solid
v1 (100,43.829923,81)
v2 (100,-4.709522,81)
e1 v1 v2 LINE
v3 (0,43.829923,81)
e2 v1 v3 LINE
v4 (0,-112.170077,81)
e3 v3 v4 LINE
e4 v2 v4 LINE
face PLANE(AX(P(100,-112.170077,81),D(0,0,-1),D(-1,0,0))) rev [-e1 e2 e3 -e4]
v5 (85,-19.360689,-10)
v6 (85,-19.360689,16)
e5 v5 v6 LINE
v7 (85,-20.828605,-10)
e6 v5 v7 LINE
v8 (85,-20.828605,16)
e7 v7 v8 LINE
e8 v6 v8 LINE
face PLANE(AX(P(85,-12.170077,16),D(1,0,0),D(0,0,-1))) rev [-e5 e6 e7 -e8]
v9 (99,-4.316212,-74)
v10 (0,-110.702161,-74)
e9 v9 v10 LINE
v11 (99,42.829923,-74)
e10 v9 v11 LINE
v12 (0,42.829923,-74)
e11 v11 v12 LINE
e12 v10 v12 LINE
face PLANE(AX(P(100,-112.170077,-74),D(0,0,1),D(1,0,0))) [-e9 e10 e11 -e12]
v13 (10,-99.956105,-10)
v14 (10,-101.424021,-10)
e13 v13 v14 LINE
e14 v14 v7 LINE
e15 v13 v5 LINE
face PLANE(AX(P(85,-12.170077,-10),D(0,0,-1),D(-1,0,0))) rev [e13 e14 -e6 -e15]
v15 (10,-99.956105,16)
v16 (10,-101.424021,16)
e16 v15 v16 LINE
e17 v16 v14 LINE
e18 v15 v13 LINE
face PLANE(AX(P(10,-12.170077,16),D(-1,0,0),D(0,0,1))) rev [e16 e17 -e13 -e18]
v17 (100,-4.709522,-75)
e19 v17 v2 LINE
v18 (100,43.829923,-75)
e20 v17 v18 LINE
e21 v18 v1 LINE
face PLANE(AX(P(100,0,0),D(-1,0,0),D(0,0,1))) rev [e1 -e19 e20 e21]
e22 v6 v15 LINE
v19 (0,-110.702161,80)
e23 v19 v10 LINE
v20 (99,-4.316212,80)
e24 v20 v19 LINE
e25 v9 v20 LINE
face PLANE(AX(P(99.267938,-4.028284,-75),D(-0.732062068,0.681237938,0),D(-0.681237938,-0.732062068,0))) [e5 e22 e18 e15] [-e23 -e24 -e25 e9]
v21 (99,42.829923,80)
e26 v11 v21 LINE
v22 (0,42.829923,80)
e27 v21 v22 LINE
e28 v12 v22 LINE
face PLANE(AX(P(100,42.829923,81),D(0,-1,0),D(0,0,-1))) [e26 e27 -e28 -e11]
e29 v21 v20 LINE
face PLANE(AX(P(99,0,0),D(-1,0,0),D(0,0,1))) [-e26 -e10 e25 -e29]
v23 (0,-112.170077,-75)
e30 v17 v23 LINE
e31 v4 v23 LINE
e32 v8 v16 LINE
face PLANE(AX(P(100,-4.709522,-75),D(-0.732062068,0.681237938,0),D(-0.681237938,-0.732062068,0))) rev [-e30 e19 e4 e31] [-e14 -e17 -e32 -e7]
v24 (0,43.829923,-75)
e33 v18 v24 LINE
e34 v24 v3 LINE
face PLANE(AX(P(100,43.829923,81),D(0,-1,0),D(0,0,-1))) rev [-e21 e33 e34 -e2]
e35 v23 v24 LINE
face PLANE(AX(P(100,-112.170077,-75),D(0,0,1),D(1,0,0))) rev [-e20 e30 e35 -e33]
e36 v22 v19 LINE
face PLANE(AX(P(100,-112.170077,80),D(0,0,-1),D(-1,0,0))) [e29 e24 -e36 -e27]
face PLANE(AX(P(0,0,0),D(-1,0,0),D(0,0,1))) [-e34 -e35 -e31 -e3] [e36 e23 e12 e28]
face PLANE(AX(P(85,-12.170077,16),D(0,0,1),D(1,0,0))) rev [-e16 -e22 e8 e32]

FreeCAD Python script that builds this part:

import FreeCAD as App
import Part
import Sketcher
from FreeCAD import Vector


def faces_at(feature, points):
    """Names of the faces that lie closest to the given points."""
    faces = feature.Shape.Faces
    near = lambda p: min(range(len(faces)), key=lambda i: faces[i].distToShape(Part.Vertex(*p))[0])
    return sorted({f"Face{near(p) + 1}" for p in points})

doc = App.newDocument("Part")
params = doc.addObject("Spreadsheet::Sheet", "Params")
for row, (alias, value) in enumerate([
    ("sketch1_width", "156 mm"),
    ("pad1_length", "100 mm"),
    ("sketch2_width", "75 mm"),
    ("sketch2_height", "26 mm"),
    ("pocket1_length", "100 mm"),
    ("sketch3_width", "100 mm"),
    ("thickness_wall", "1 mm"),
    ("sketch4_width", "77 mm"),
    ("pocket3_length", "28 mm"),
], start=1):
    params.set(f"A{row}", alias)
    params.set(f"B{row}", "=" + value)
    params.setAlias(f"B{row}", alias)

body = doc.addObject("PartDesign::Body", "Body")

# Sketch on YZ plane
sketch1 = body.newObject("Sketcher::SketchObject", "Sketch")
sketch1.AttachmentSupport = (doc.getObject("YZ_Plane"), [""])
sketch1.MapMode = "FlatFace"
sketch1.addGeometry([
    Part.LineSegment(Vector(44, 81, 0), Vector(-112, 81, 0)),
    Part.LineSegment(Vector(-112, 81, 0), Vector(-112, -75, 0)),
    Part.LineSegment(Vector(-112, -75, 0), Vector(44, -75, 0)),
    Part.LineSegment(Vector(44, -75, 0), Vector(44, 81, 0)),
], False)
sketch1.addConstraint([
    Sketcher.Constraint("Coincident", 0, 2, 1, 1),
    Sketcher.Constraint("Coincident", 1, 2, 2, 1),
    Sketcher.Constraint("Coincident", 2, 2, 3, 1),
    Sketcher.Constraint("Coincident", 3, 2, 0, 1),
    Sketcher.Constraint("Horizontal", 0),
    Sketcher.Constraint("Vertical", 1),
    Sketcher.Constraint("Horizontal", 2),
    Sketcher.Constraint("Vertical", 3),
    Sketcher.Constraint("Equal", 2, 1),
    Sketcher.Constraint("DistanceX", 0, 2, 0, 1, 156.0),
    Sketcher.Constraint("DistanceY", -1, 1, 0, 2, 81.0),
    Sketcher.Constraint("DistanceX", 0, 2, -1, 1, 112.170077),
])
sketch1.setExpression("Constraints[9]", "Params.sketch1_width")
pad1 = body.newObject("PartDesign::Pad", "Pad")
pad1.Profile = sketch1
pad1.setExpression("Length", "Params.pad1_length")

# Sketch on XZ plane
sketch2 = body.newObject("Sketcher::SketchObject", "Sketch001")
sketch2.AttachmentSupport = (doc.getObject("XZ_Plane"), [""])
sketch2.MapMode = "FlatFace"
sketch2.AttachmentOffset = App.Placement(Vector(0, 0, 112.170077), App.Rotation())
sketch2.addGeometry([
    Part.LineSegment(Vector(10, 16, 0), Vector(10, -10, 0)),
    Part.LineSegment(Vector(10, -10, 0), Vector(85, -10, 0)),
    Part.LineSegment(Vector(85, -10, 0), Vector(85, 16, 0)),
    Part.LineSegment(Vector(85, 16, 0), Vector(10, 16, 0)),
], False)
sketch2.addConstraint([
    Sketcher.Constraint("Coincident", 0, 2, 1, 1),
    Sketcher.Constraint("Coincident", 1, 2, 2, 1),
    Sketcher.Constraint("Coincident", 2, 2, 3, 1),
    Sketcher.Constraint("Coincident", 3, 2, 0, 1),
    Sketcher.Constraint("Vertical", 0),
    Sketcher.Constraint("Horizontal", 1),
    Sketcher.Constraint("Vertical", 2),
    Sketcher.Constraint("Horizontal", 3),
    Sketcher.Constraint("DistanceX", 1, 1, 1, 2, 75.0),
    Sketcher.Constraint("DistanceY", 0, 2, 0, 1, 26.0),
    Sketcher.Constraint("DistanceX", -1, 1, 0, 2, 10.0),
    Sketcher.Constraint("DistanceY", 0, 2, -1, 1, 10.0),
])
sketch2.setExpression("Constraints[8]", "Params.sketch2_width")
sketch2.setExpression("Constraints[9]", "Params.sketch2_height")
pocket1 = body.newObject("PartDesign::Pocket", "Pocket")
pocket1.Profile = sketch2
pocket1.setExpression("Length", "Params.pocket1_length")

# Sketch on XY plane
sketch3 = body.newObject("Sketcher::SketchObject", "Sketch002")
sketch3.AttachmentSupport = (doc.getObject("XY_Plane"), [""])
sketch3.MapMode = "FlatFace"
sketch3.AttachmentOffset = App.Placement(Vector(0, 0, 81), App.Rotation())
sketch3.addGeometry([
    Part.LineSegment(Vector(100, -5, 0), Vector(0, -112, 0)),
    Part.LineSegment(Vector(0, -112, 0), Vector(100, -112, 0)),
    Part.LineSegment(Vector(100, -112, 0), Vector(100, -5, 0)),
], False)
sketch3.addConstraint([
    Sketcher.Constraint("Coincident", 0, 2, 1, 1),
    Sketcher.Constraint("Coincident", 1, 2, 2, 1),
    Sketcher.Constraint("Coincident", 2, 2, 0, 1),
    Sketcher.Constraint("Horizontal", 1),
    Sketcher.Constraint("Vertical", 2),
    Sketcher.Constraint("PointOnObject", 0, 2, -2),
    Sketcher.Constraint("DistanceX", 1, 1, 1, 2, 100.0),
    Sketcher.Constraint("Distance", 0, 146.79159),
    Sketcher.Constraint("DistanceY", 2, 2, -1, 1, 4.709522),
])
sketch3.setExpression("Constraints[6]", "Params.sketch3_width")
pocket2 = body.newObject("PartDesign::Pocket", "Pocket001")
pocket2.Profile = sketch3
pocket2.Type = "ThroughAll"
doc.recompute()

thickness = body.newObject("PartDesign::Thickness", "Thickness")
thickness.Base = (pocket2, faces_at(pocket2, [(0, -34.17, 3)]))
thickness.setExpression("Value", "Params.thickness_wall")
thickness.Reversed = True
thickness.Join = "Intersection"

# Sketch on XY plane
sketch4 = body.newObject("Sketcher::SketchObject", "Sketch003")
sketch4.AttachmentSupport = (doc.getObject("XY_Plane"), [""])
sketch4.MapMode = "FlatFace"
sketch4.AttachmentOffset = App.Placement(Vector(0, 0, -11), App.Rotation())
sketch4.addGeometry([
    Part.LineSegment(Vector(86, -18, 0), Vector(9, -101, 0)),
    Part.LineSegment(Vector(9, -101, 0), Vector(9, -11, 0)),
    Part.LineSegment(Vector(9, -11, 0), Vector(86, -11, 0)),
    Part.LineSegment(Vector(86, -11, 0), Vector(86, -18, 0)),
], False)
sketch4.addConstraint([
    Sketcher.Constraint("Coincident", 0, 2, 1, 1),
    Sketcher.Constraint("Coincident", 1, 2, 2, 1),
    Sketcher.Constraint("Coincident", 2, 2, 3, 1),
    Sketcher.Constraint("Coincident", 3, 2, 0, 1),
    Sketcher.Constraint("Vertical", 1),
    Sketcher.Constraint("Horizontal", 2),
    Sketcher.Constraint("Vertical", 3),
    Sketcher.Constraint("DistanceX", 2, 1, 2, 2, 77.0),
    Sketcher.Constraint("DistanceX", -1, 1, 0, 2, 9.0),
    Sketcher.Constraint("DistanceY", 1, 1, 1, 2, 89.860634),
    Sketcher.Constraint("DistanceY", 3, 2, 3, 1, 7.116007),
    Sketcher.Constraint("DistanceY", 0, 2, -1, 1, 101.030711),
])
sketch4.setExpression("Constraints[7]", "Params.sketch4_width")
pocket3 = body.newObject("PartDesign::Pocket", "Pocket002")
pocket3.Profile = sketch4
pocket3.setExpression("Length", "Params.pocket3_length")
pocket3.Reversed = True

doc.recompute()
